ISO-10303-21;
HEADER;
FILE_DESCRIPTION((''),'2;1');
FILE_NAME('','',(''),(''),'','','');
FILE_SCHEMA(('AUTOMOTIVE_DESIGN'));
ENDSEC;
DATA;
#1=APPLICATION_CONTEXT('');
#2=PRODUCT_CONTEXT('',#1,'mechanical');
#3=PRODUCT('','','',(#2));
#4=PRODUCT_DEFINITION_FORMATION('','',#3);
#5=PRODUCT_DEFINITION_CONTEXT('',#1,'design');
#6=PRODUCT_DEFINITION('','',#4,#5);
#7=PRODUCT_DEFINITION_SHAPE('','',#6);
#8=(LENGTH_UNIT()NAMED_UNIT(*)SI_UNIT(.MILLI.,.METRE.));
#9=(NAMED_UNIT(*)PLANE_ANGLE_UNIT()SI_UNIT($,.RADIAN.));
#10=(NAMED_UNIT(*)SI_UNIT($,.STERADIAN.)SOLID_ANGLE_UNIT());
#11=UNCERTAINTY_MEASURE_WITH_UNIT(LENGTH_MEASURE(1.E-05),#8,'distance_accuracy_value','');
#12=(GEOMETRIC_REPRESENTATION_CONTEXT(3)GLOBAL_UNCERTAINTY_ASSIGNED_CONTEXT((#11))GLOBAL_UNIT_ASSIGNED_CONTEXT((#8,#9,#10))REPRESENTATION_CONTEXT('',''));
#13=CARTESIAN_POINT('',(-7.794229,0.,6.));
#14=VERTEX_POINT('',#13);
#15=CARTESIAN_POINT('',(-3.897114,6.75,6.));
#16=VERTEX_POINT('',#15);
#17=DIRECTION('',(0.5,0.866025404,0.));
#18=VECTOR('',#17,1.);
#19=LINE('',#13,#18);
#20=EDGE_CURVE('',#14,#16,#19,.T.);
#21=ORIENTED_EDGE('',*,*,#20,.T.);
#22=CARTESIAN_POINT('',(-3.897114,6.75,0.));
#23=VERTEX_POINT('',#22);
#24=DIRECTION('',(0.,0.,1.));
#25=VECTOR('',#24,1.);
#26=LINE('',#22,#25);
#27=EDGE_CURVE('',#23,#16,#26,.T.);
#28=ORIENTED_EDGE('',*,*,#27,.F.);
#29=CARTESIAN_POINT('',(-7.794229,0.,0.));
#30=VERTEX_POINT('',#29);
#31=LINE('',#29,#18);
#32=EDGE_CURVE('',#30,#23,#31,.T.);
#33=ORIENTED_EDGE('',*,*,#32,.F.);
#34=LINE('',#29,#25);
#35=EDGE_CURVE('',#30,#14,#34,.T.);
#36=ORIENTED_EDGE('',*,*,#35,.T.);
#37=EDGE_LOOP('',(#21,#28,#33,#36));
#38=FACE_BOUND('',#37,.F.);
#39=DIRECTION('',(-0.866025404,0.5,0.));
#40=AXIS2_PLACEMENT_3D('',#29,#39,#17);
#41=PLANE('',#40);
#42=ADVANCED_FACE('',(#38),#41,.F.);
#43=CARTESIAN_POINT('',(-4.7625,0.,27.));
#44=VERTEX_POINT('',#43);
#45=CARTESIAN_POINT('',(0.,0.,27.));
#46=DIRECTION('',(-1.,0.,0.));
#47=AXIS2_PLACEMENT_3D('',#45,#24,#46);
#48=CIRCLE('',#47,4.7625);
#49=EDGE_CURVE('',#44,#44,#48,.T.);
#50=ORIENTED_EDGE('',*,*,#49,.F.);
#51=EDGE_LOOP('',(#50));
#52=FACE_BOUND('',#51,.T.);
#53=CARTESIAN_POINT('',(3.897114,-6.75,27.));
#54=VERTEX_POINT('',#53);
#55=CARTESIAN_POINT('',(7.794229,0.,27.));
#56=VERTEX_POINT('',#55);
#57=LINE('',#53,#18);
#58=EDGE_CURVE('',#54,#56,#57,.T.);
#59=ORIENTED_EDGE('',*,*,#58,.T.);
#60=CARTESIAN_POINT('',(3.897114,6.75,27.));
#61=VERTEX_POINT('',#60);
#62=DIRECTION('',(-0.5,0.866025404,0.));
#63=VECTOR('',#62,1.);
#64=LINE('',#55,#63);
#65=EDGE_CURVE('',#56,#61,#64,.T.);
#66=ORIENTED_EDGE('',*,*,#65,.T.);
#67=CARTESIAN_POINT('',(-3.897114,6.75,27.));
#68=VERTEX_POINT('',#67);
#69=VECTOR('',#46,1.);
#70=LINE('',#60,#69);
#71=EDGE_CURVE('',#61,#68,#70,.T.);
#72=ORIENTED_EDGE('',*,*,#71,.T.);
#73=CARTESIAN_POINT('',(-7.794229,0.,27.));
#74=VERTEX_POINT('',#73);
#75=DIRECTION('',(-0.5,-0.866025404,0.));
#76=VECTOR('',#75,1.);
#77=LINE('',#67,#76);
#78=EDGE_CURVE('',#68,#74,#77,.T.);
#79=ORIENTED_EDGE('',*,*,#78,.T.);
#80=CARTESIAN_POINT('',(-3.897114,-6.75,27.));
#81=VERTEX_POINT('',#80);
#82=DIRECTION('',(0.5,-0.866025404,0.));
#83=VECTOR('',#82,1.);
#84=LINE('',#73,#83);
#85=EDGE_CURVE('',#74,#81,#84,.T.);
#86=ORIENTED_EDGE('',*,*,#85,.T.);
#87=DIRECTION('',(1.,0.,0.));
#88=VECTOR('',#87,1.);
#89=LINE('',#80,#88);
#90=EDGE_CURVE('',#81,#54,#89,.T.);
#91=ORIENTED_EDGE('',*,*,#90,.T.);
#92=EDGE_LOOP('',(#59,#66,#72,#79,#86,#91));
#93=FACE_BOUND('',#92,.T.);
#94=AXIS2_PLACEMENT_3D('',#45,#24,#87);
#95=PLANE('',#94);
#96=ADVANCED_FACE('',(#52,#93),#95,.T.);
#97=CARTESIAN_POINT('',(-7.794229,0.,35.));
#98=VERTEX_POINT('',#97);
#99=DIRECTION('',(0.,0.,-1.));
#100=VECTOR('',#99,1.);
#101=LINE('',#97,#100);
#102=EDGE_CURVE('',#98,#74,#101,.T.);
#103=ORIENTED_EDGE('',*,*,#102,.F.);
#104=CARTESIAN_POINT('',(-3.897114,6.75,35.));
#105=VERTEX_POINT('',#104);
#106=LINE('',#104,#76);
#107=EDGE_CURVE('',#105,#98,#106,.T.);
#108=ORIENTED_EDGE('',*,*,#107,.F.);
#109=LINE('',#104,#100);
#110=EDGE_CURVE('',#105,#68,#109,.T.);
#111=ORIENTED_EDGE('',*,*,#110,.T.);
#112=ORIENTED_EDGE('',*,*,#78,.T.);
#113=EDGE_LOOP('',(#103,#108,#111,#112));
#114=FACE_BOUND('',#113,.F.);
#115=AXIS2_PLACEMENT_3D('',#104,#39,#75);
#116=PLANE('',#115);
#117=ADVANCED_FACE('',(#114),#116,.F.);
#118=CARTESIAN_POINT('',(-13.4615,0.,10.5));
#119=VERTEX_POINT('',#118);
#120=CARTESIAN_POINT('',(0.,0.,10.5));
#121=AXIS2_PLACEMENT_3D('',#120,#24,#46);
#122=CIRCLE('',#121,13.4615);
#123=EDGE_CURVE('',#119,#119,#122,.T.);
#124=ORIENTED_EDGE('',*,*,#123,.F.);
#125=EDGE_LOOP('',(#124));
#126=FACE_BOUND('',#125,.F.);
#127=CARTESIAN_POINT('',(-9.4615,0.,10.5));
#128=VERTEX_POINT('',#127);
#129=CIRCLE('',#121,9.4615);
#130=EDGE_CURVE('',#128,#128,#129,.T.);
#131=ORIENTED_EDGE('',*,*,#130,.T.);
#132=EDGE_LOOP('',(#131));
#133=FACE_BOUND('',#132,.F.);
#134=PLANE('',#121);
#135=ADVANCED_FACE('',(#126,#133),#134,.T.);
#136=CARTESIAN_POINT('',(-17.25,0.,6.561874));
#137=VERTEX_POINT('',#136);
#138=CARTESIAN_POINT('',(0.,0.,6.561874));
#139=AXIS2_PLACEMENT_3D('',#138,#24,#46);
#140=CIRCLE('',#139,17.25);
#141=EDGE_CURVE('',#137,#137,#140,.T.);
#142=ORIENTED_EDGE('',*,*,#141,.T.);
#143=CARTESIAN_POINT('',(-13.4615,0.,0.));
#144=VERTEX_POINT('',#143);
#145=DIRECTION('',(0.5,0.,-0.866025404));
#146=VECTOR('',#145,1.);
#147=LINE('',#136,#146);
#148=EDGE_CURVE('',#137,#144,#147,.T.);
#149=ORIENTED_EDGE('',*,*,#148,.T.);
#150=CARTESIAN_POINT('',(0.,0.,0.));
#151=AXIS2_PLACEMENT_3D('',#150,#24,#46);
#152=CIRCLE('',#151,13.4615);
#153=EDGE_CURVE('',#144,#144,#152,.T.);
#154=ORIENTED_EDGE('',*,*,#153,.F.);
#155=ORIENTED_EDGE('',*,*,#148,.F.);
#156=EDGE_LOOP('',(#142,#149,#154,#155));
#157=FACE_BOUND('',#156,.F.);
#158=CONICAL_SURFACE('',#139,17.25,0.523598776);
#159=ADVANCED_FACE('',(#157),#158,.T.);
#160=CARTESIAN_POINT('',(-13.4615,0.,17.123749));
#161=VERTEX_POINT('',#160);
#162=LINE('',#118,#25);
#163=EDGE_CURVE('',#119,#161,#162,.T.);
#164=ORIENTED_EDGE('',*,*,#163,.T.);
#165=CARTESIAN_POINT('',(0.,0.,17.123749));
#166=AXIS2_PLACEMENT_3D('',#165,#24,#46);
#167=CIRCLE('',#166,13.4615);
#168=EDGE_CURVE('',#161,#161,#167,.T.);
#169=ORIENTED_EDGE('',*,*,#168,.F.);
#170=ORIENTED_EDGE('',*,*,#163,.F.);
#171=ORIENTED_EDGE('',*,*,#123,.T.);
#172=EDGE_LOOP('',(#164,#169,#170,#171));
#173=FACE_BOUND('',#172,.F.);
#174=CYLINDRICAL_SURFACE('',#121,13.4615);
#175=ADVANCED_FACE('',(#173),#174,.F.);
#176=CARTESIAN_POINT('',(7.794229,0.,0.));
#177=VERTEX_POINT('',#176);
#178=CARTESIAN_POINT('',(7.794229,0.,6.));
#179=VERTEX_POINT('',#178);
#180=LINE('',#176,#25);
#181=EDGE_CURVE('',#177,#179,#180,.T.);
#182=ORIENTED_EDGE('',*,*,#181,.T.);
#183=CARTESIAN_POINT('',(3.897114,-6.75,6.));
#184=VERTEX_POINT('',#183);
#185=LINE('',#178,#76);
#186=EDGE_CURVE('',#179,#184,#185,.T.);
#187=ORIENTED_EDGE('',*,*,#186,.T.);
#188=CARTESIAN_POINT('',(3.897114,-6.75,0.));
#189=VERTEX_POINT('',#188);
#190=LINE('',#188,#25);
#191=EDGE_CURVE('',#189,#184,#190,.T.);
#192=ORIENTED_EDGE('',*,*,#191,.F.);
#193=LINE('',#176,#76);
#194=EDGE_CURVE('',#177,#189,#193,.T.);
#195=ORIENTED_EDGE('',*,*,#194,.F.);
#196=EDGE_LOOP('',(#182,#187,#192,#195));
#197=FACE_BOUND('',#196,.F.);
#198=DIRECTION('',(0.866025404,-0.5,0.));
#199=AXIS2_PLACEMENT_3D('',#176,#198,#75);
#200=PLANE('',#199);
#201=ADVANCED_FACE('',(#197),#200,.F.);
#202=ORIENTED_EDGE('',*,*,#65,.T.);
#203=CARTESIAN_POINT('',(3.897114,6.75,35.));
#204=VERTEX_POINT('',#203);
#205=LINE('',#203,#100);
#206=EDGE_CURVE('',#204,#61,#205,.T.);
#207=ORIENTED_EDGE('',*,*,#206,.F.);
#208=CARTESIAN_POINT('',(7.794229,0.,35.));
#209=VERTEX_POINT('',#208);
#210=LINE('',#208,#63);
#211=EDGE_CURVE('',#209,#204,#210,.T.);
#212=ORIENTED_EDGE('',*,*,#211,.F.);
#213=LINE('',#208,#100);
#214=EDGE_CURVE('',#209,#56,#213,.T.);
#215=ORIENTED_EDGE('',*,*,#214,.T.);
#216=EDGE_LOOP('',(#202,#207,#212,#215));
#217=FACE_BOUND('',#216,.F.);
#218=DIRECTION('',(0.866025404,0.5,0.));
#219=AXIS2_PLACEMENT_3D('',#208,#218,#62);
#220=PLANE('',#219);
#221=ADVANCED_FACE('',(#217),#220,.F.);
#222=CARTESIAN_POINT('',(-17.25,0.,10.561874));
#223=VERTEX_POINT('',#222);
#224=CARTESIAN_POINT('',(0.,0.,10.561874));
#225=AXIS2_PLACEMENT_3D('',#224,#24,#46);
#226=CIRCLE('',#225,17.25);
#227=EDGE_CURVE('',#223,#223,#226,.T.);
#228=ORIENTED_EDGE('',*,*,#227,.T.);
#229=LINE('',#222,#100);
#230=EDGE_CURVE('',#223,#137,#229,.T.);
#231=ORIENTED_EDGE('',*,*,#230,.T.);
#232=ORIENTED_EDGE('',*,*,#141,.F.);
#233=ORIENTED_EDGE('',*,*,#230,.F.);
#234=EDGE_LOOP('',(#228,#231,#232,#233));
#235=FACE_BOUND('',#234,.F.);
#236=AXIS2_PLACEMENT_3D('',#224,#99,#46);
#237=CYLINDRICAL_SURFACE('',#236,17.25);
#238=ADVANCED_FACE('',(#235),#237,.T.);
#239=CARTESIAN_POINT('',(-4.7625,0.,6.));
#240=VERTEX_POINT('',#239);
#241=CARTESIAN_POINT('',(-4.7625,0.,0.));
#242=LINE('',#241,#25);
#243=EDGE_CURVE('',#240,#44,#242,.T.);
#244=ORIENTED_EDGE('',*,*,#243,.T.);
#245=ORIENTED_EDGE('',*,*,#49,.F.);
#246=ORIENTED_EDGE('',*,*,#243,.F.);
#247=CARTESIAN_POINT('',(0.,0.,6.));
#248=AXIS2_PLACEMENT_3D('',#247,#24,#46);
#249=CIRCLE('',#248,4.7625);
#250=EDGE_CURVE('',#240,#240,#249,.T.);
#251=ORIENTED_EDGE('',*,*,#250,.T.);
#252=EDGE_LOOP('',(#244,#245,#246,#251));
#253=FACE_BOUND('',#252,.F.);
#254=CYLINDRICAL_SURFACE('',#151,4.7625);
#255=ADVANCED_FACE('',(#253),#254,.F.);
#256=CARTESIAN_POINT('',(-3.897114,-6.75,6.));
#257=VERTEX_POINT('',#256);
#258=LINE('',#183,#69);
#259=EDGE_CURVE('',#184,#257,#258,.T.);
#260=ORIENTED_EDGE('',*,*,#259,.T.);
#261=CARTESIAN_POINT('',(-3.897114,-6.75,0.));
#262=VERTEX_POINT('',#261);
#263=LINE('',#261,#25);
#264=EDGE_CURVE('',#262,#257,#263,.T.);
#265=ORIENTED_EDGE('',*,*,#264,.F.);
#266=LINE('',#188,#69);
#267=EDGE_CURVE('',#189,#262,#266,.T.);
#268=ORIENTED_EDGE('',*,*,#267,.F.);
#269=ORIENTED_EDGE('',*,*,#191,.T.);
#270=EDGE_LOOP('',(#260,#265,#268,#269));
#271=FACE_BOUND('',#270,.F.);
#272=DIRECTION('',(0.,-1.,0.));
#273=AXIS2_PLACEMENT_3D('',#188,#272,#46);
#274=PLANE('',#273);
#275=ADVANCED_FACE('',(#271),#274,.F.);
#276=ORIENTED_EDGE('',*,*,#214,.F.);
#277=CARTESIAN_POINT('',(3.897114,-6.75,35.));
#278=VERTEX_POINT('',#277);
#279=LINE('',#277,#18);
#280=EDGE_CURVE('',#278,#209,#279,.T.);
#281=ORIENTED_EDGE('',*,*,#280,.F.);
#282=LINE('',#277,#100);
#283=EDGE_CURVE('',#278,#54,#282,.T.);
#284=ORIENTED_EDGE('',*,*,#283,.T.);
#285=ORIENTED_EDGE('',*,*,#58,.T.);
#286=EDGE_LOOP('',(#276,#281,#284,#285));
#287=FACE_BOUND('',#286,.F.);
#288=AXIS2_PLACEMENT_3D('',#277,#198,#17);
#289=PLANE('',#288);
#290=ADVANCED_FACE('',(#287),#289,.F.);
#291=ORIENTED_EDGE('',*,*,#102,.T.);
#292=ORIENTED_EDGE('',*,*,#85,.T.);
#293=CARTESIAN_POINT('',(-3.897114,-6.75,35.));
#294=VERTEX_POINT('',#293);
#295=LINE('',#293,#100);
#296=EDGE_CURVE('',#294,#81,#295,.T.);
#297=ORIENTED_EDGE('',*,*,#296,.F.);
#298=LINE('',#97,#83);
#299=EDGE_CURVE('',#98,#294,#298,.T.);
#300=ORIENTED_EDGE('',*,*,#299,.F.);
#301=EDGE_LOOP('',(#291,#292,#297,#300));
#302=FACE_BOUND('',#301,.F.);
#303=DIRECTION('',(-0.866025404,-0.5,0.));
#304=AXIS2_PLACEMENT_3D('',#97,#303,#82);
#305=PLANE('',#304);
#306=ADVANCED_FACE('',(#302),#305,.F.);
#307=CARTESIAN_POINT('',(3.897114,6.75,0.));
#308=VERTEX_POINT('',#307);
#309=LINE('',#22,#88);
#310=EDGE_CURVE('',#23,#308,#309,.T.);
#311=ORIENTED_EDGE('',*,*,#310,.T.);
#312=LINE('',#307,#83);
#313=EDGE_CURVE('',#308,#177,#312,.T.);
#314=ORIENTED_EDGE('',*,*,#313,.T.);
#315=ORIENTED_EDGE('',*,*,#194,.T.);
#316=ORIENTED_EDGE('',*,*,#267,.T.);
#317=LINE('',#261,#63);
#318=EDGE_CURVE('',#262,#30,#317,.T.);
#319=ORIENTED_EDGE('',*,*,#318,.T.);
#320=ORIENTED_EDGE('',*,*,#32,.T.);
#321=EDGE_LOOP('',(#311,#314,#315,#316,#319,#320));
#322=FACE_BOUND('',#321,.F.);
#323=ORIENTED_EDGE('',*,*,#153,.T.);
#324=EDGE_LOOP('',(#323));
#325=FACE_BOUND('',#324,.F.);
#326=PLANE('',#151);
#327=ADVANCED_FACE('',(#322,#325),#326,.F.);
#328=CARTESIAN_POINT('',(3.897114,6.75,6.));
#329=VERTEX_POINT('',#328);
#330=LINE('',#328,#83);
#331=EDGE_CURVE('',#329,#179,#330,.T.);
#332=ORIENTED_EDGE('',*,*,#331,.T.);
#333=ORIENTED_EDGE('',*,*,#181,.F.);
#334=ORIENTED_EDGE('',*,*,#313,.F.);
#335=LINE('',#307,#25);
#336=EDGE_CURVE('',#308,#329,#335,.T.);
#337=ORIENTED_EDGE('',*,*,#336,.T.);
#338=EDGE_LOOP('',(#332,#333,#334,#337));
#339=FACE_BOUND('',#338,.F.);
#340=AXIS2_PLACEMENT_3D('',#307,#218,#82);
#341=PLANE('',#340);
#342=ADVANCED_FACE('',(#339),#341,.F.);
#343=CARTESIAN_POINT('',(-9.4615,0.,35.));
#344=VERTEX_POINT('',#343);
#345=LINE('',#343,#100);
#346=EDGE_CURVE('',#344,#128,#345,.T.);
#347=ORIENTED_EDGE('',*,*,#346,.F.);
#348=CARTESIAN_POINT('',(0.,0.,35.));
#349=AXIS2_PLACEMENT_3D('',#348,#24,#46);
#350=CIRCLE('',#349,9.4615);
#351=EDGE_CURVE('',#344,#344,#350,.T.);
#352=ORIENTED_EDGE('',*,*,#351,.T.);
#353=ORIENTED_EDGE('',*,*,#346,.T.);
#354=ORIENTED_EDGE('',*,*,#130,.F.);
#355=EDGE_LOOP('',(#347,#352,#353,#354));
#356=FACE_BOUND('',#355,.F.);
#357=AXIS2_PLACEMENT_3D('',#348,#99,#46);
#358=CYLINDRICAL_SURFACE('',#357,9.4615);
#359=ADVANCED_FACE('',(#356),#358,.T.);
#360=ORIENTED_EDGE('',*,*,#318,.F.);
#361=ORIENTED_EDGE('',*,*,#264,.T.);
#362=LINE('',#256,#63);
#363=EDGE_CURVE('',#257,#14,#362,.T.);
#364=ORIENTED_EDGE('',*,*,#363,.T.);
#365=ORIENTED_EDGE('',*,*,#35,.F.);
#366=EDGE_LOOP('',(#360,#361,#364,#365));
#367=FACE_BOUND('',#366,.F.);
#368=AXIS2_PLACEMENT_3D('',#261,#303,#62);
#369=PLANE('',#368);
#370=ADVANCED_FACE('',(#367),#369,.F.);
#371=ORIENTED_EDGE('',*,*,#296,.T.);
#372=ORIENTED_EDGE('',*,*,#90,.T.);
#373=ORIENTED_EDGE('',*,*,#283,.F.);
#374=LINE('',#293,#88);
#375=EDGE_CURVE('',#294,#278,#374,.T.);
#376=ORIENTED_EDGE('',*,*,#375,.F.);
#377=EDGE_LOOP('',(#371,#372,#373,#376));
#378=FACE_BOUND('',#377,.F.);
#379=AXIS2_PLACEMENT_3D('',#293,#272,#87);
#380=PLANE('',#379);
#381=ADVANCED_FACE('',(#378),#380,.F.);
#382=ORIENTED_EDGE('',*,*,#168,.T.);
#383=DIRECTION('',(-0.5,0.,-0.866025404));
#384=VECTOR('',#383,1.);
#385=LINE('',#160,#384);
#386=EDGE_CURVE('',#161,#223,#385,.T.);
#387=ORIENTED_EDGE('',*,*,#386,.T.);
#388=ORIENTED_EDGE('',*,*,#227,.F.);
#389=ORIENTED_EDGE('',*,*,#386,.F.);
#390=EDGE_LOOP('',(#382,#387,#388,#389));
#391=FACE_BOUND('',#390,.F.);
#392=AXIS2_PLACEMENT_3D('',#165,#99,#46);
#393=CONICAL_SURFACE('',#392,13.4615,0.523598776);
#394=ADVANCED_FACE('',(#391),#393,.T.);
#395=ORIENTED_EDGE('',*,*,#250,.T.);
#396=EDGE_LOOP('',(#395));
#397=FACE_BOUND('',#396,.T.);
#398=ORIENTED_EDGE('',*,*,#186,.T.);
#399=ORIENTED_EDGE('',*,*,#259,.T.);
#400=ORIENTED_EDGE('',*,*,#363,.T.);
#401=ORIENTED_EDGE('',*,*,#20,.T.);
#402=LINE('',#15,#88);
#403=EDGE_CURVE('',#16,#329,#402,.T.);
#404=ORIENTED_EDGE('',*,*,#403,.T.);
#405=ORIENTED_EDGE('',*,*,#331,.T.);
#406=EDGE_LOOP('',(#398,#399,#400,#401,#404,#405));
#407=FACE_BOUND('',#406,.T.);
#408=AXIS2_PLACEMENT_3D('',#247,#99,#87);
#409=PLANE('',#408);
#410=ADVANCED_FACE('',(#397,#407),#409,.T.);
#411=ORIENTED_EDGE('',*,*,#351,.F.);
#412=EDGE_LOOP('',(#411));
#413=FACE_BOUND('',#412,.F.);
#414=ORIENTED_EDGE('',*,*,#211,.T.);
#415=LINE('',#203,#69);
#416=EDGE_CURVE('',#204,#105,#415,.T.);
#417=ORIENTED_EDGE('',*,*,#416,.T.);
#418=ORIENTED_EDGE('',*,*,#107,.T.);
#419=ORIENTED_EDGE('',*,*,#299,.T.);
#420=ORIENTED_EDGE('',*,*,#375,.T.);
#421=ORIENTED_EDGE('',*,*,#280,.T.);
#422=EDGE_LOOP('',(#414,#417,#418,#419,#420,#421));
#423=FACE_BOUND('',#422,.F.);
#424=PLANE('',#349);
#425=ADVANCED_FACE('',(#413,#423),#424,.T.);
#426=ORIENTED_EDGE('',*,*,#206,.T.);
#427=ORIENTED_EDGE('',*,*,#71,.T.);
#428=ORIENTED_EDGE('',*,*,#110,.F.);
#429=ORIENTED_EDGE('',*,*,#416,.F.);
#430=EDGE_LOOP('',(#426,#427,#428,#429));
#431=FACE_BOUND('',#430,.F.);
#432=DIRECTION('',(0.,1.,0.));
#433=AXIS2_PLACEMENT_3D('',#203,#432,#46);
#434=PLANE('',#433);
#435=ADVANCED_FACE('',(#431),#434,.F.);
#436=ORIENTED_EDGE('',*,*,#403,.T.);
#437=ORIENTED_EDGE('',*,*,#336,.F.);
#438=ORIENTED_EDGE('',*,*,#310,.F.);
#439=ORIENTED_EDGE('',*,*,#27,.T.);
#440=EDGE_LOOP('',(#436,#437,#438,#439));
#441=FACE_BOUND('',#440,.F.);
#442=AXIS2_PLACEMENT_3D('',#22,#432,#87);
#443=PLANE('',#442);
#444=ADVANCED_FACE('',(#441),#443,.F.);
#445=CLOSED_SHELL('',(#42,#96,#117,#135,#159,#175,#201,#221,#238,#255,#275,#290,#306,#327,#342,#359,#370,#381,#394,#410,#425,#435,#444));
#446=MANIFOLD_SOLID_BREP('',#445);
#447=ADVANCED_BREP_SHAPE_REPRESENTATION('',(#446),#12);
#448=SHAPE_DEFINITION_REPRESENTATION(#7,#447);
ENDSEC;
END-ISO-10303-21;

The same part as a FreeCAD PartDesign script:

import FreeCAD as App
import Part
import Sketcher

V = App.Vector
Q = App.Units.Quantity


def add_polygon(sketch, points):
    """Adds a closed chain of lines whose ends are joined by coincident constraints."""
    first, n = sketch.GeometryCount, len(points)
    for a, b in zip(points, points[1:] + points[:1]):
        sketch.addGeometry(Part.LineSegment(App.Vector(*a, 0), App.Vector(*b, 0)), False)
    for i in range(n):
        sketch.addConstraint(Sketcher.Constraint("Coincident", first + i, 2, first + (i + 1) % n, 1))

doc = App.newDocument("Part")
params = doc.addObject("Spreadsheet::Sheet", "Params")
for row, (alias, value) in enumerate([
    ("sketch1_width", "4 mm"),
    ("sketch1_height", "35 mm"),
    ("sketch1_height2", "24.5 mm"),
    ("revolution_angle", "360 deg"),
    ("pocket1_length", "8 mm"),
    ("pocket2_length", "6 mm"),
], start=1):
    params.set(f"A{row}", alias)
    params.set(f"B{row}", "=" + value)
    params.setAlias(f"B{row}", alias)

body = doc.addObject("PartDesign::Body", "Body")

# Sketch on XZ plane
sketch1 = doc.addObject("Sketcher::SketchObject", "Sketch")
body.addObject(sketch1)
sketch1.AttachmentSupport = (doc.XZ_Plane, [""])
sketch1.MapMode = "FlatFace"
add_polygon(sketch1, [(-13.4615, 0), (-4.7625, 0), (-4.7625, 35), (-9.4615, 35), (-9.4615, 10.5), (-13.4615, 10.5), (-13.4615, 17.123749), (-17.25, 10.561874), (-17.25, 6.561874)])  # lines 0-8
sketch1.addConstraint(Sketcher.Constraint("Horizontal", 0))
sketch1.addConstraint(Sketcher.Constraint("Vertical", 1))
sketch1.addConstraint(Sketcher.Constraint("Horizontal", 2))
sketch1.addConstraint(Sketcher.Constraint("Vertical", 3))
sketch1.addConstraint(Sketcher.Constraint("Horizontal", 4))
sketch1.addConstraint(Sketcher.Constraint("Vertical", 5))
sketch1.addConstraint(Sketcher.Constraint("Vertical", 7))
sketch1.addConstraint(Sketcher.Constraint("PointOnObject", 0, 2, -1))
sketch1.addConstraint(Sketcher.Constraint("Vertical", 5, 2, 8, 2))
sketch1.addConstraint(Sketcher.Constraint("Equal", 4, 7))
sketch1.addConstraint(Sketcher.Constraint("Equal", 6, 8))
sketch1.addConstraint(Sketcher.Constraint("DistanceX", 4, 2, 4, 1, Q("4 mm")))
sketch1.addConstraint(Sketcher.Constraint("DistanceY", 1, 1, 1, 2, Q("35 mm")))
sketch1.addConstraint(Sketcher.Constraint("Angle", 6, Q("-120 deg")))
sketch1.addConstraint(Sketcher.Constraint("DistanceY", 3, 2, 3, 1, Q("24.5 mm")))
sketch1.addConstraint(Sketcher.Constraint("DistanceX", 0, 1, 0, 2, Q("8.699 mm")))
sketch1.addConstraint(Sketcher.Constraint("DistanceX", 6, 2, -1, 1, Q("17.25 mm")))
sketch1.addConstraint(Sketcher.Constraint("Distance", 6, Q("7.577 mm")))
sketch1.setExpression("Constraints[20]", "Params.sketch1_width")
sketch1.setExpression("Constraints[21]", "Params.sketch1_height")
sketch1.setExpression("Constraints[23]", "Params.sketch1_height2")
revolution = doc.addObject("PartDesign::Revolution", "Revolution")
body.addObject(revolution)
revolution.Profile = sketch1
revolution.ReferenceAxis = (sketch1, ["V_Axis"])
revolution.setExpression("Angle", "Params.revolution_angle")

# Sketch on XY plane
sketch2 = doc.addObject("Sketcher::SketchObject", "Sketch001")
body.addObject(sketch2)
sketch2.AttachmentSupport = (doc.XY_Plane, [""])
sketch2.MapMode = "FlatFace"
sketch2.AttachmentOffset = App.Placement(V(0, 0, 35), App.Rotation())
add_polygon(sketch2, [(3.897114, 6.75), (-3.897114, 6.75), (-7.794229, 0), (-3.897114, -6.75), (3.897114, -6.75), (7.794229, 0)])  # lines 0-5
sketch2.addGeometry(Part.Circle(V(0, 0, 0), V(0, 0, 1), 4.7625), False)  # 6
sketch2.addConstraint(Sketcher.Constraint("Horizontal", 0))
sketch2.addConstraint(Sketcher.Constraint("Horizontal", 3))
sketch2.addConstraint(Sketcher.Constraint("Coincident", 6, 3, -1, 1))
sketch2.addConstraint(Sketcher.Constraint("Symmetric", 0, 2, 3, 2, -1, 1))
sketch2.addConstraint(Sketcher.Constraint("Symmetric", 1, 2, 4, 2, -1, 1))
sketch2.addConstraint(Sketcher.Constraint("PointOnObject", 1, 2, -1))
sketch2.addConstraint(Sketcher.Constraint("Parallel", 2, 5))
sketch2.addConstraint(Sketcher.Constraint("Vertical", 0, 2, 2, 2))
sketch2.addConstraint(Sketcher.Constraint("Angle", 1, Q("-120 deg")))
sketch2.addConstraint(Sketcher.Constraint("Diameter", 6, Q("9.525 mm")))
sketch2.addConstraint(Sketcher.Constraint("DistanceY", 2, 2, 0, 2, Q("13.5 mm")))
sketch2.addConstraint(Sketcher.Constraint("DistanceX", 0, 2, 0, 1, Q("7.794229 mm")))
pocket1 = doc.addObject("PartDesign::Pocket", "Pocket")
body.addObject(pocket1)
pocket1.Profile = sketch2
pocket1.setExpression("Length", "Params.pocket1_length")

# Sketch on XY plane
sketch3 = doc.addObject("Sketcher::SketchObject", "Sketch002")
body.addObject(sketch3)
sketch3.AttachmentSupport = (doc.XY_Plane, [""])
sketch3.MapMode = "FlatFace"
add_polygon(sketch3, [(3.897114, -6.75), (-3.897114, -6.75), (-7.794229, 0), (-3.897114, 6.75), (3.897114, 6.75), (7.794229, 0)])  # lines 0-5
sketch3.addGeometry(Part.Circle(V(0, 0, 0), V(0, 0, 1), 4.7625), False)  # 6
sketch3.addConstraint(Sketcher.Constraint("Horizontal", 0))
sketch3.addConstraint(Sketcher.Constraint("Horizontal", 3))
sketch3.addConstraint(Sketcher.Constraint("Coincident", 6, 3, -1, 1))
sketch3.addConstraint(Sketcher.Constraint("Symmetric", 0, 2, 3, 2, -1, 1))
sketch3.addConstraint(Sketcher.Constraint("Symmetric", 1, 2, 4, 2, -1, 1))
sketch3.addConstraint(Sketcher.Constraint("PointOnObject", 1, 2, -1))
sketch3.addConstraint(Sketcher.Constraint("Parallel", 2, 5))
sketch3.addConstraint(Sketcher.Constraint("Vertical", 0, 2, 2, 2))
sketch3.addConstraint(Sketcher.Constraint("Angle", 1, Q("120 deg")))
sketch3.addConstraint(Sketcher.Constraint("Diameter", 6, Q("9.525 mm")))
sketch3.addConstraint(Sketcher.Constraint("DistanceY", 0, 2, 2, 2, Q("13.5 mm")))
sketch3.addConstraint(Sketcher.Constraint("DistanceX", 0, 2, 0, 1, Q("7.794229 mm")))
pocket2 = doc.addObject("PartDesign::Pocket", "Pocket001")
body.addObject(pocket2)
pocket2.Profile = sketch3
pocket2.setExpression("Length", "Params.pocket2_length")
pocket2.Reversed = True

doc.recompute()
